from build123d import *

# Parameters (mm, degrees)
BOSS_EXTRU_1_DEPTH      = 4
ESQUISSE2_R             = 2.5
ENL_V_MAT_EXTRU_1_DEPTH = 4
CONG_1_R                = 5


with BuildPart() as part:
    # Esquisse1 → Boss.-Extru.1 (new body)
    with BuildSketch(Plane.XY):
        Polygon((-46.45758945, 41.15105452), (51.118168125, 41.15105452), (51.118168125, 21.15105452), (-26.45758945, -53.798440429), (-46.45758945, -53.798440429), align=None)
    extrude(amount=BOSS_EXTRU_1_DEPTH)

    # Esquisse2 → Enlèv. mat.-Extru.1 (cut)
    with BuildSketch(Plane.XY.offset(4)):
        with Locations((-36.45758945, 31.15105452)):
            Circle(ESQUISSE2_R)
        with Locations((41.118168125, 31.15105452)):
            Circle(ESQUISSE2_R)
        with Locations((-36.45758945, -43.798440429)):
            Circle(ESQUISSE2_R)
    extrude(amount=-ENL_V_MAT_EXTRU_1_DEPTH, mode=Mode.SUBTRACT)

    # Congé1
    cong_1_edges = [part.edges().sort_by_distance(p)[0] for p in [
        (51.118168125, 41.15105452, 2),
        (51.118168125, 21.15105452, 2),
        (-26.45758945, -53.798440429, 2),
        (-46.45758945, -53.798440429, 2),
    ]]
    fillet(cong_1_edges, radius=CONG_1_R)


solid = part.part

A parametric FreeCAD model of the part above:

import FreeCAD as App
import Part
import Sketcher
from FreeCAD import Vector


def edges_at(feature, points):
    """Names of the edges that pass closest to the given points."""
    edges = feature.Shape.Edges
    near = lambda p: min(range(len(edges)), key=lambda i: edges[i].distToShape(Part.Vertex(*p))[0])
    return sorted({f"Edge{near(p) + 1}" for p in points})


def add_polygon(sketch, points):
    """Adds a closed chain of lines whose ends are joined by coincident constraints."""
    first, n = sketch.GeometryCount, len(points)
    for a, b in zip(points, points[1:] + points[:1]):
        sketch.addGeometry(Part.LineSegment(App.Vector(*a, 0), App.Vector(*b, 0)), False)
    for i in range(n):
        sketch.addConstraint(Sketcher.Constraint("Coincident", first + i, 2, first + (i + 1) % n, 1))

doc = App.newDocument("Part")
body = doc.addObject("PartDesign::Body", "Body")

sketch1 = body.newObject("Sketcher::SketchObject", "Sketch")
sketch1.AttachmentSupport = (doc.getObject("XY_Plane"), [""])
sketch1.MapMode = "FlatFace"
add_polygon(sketch1, [(51, 41), (-46, 41), (-46, -54), (-26, -54), (51, 21)])
sketch1.addConstraint([
    Sketcher.Constraint("Horizontal", 0),
    Sketcher.Constraint("Vertical", 1),
    Sketcher.Constraint("Horizontal", 2),
    Sketcher.Constraint("Vertical", 4),
    Sketcher.Constraint("Equal", 2, 4),
    Sketcher.Constraint("DistanceX", 2, 1, 2, 2, 20.0),
    Sketcher.Constraint("DistanceX", 0, 2, 0, 1, 97.575758),
    Sketcher.Constraint("DistanceY", 1, 2, 1, 1, 94.949495),
    Sketcher.Constraint("DistanceX", 0, 2, -1, 1, 46.457589),
    Sketcher.Constraint("DistanceY", 1, 2, -1, 1, 53.79844),
])
pad1 = body.newObject("PartDesign::Pad", "Pad")
pad1.Profile = sketch1
pad1.Length = 4

sketch2 = body.newObject("Sketcher::SketchObject", "Sketch001")
sketch2.AttachmentSupport = (doc.getObject("XY_Plane"), [""])
sketch2.MapMode = "FlatFace"
sketch2.AttachmentOffset = App.Placement(Vector(0, 0, 4), App.Rotation())
sketch2.addGeometry([
    Part.Circle(Vector(-36.5, 31.2, 0), Vector(0, 0, 1), 2.5),
    Part.Circle(Vector(41.1, 31.2, 0), Vector(0, 0, 1), 2.5),
    Part.Circle(Vector(-36.5, -43.8, 0), Vector(0, 0, 1), 2.5),
], False)
sketch2.addConstraint([
    Sketcher.Constraint("Equal", 0, 1),
    Sketcher.Constraint("Equal", 1, 2),
    Sketcher.Constraint("Horizontal", 0, 3, 1, 3),
    Sketcher.Constraint("Vertical", 0, 3, 2, 3),
    Sketcher.Constraint("Diameter", 0, 5.0),
    Sketcher.Constraint("DistanceX", 0, 3, -1, 1, 36.457589),
    Sketcher.Constraint("DistanceX", -1, 1, 1, 3, 41.118168),
    Sketcher.Constraint("DistanceY", 2, 3, -1, 1, 43.79844),
    Sketcher.Constraint("DistanceY", -1, 1, 0, 3, 31.151055),
])
pocket1 = body.newObject("PartDesign::Pocket", "Pocket")
pocket1.Profile = sketch2
pocket1.Length = 4
doc.recompute()

fillet = body.newObject("PartDesign::Fillet", "Fillet")
fillet.Base = (pocket1, edges_at(pocket1, [
    (51.118, 41.151, 2),
    (51.118, 21.151, 2),
    (-26.458, -53.798, 2),
    (-46.458, -53.798, 2),
]))
fillet.Radius = 5

doc.recompute()
